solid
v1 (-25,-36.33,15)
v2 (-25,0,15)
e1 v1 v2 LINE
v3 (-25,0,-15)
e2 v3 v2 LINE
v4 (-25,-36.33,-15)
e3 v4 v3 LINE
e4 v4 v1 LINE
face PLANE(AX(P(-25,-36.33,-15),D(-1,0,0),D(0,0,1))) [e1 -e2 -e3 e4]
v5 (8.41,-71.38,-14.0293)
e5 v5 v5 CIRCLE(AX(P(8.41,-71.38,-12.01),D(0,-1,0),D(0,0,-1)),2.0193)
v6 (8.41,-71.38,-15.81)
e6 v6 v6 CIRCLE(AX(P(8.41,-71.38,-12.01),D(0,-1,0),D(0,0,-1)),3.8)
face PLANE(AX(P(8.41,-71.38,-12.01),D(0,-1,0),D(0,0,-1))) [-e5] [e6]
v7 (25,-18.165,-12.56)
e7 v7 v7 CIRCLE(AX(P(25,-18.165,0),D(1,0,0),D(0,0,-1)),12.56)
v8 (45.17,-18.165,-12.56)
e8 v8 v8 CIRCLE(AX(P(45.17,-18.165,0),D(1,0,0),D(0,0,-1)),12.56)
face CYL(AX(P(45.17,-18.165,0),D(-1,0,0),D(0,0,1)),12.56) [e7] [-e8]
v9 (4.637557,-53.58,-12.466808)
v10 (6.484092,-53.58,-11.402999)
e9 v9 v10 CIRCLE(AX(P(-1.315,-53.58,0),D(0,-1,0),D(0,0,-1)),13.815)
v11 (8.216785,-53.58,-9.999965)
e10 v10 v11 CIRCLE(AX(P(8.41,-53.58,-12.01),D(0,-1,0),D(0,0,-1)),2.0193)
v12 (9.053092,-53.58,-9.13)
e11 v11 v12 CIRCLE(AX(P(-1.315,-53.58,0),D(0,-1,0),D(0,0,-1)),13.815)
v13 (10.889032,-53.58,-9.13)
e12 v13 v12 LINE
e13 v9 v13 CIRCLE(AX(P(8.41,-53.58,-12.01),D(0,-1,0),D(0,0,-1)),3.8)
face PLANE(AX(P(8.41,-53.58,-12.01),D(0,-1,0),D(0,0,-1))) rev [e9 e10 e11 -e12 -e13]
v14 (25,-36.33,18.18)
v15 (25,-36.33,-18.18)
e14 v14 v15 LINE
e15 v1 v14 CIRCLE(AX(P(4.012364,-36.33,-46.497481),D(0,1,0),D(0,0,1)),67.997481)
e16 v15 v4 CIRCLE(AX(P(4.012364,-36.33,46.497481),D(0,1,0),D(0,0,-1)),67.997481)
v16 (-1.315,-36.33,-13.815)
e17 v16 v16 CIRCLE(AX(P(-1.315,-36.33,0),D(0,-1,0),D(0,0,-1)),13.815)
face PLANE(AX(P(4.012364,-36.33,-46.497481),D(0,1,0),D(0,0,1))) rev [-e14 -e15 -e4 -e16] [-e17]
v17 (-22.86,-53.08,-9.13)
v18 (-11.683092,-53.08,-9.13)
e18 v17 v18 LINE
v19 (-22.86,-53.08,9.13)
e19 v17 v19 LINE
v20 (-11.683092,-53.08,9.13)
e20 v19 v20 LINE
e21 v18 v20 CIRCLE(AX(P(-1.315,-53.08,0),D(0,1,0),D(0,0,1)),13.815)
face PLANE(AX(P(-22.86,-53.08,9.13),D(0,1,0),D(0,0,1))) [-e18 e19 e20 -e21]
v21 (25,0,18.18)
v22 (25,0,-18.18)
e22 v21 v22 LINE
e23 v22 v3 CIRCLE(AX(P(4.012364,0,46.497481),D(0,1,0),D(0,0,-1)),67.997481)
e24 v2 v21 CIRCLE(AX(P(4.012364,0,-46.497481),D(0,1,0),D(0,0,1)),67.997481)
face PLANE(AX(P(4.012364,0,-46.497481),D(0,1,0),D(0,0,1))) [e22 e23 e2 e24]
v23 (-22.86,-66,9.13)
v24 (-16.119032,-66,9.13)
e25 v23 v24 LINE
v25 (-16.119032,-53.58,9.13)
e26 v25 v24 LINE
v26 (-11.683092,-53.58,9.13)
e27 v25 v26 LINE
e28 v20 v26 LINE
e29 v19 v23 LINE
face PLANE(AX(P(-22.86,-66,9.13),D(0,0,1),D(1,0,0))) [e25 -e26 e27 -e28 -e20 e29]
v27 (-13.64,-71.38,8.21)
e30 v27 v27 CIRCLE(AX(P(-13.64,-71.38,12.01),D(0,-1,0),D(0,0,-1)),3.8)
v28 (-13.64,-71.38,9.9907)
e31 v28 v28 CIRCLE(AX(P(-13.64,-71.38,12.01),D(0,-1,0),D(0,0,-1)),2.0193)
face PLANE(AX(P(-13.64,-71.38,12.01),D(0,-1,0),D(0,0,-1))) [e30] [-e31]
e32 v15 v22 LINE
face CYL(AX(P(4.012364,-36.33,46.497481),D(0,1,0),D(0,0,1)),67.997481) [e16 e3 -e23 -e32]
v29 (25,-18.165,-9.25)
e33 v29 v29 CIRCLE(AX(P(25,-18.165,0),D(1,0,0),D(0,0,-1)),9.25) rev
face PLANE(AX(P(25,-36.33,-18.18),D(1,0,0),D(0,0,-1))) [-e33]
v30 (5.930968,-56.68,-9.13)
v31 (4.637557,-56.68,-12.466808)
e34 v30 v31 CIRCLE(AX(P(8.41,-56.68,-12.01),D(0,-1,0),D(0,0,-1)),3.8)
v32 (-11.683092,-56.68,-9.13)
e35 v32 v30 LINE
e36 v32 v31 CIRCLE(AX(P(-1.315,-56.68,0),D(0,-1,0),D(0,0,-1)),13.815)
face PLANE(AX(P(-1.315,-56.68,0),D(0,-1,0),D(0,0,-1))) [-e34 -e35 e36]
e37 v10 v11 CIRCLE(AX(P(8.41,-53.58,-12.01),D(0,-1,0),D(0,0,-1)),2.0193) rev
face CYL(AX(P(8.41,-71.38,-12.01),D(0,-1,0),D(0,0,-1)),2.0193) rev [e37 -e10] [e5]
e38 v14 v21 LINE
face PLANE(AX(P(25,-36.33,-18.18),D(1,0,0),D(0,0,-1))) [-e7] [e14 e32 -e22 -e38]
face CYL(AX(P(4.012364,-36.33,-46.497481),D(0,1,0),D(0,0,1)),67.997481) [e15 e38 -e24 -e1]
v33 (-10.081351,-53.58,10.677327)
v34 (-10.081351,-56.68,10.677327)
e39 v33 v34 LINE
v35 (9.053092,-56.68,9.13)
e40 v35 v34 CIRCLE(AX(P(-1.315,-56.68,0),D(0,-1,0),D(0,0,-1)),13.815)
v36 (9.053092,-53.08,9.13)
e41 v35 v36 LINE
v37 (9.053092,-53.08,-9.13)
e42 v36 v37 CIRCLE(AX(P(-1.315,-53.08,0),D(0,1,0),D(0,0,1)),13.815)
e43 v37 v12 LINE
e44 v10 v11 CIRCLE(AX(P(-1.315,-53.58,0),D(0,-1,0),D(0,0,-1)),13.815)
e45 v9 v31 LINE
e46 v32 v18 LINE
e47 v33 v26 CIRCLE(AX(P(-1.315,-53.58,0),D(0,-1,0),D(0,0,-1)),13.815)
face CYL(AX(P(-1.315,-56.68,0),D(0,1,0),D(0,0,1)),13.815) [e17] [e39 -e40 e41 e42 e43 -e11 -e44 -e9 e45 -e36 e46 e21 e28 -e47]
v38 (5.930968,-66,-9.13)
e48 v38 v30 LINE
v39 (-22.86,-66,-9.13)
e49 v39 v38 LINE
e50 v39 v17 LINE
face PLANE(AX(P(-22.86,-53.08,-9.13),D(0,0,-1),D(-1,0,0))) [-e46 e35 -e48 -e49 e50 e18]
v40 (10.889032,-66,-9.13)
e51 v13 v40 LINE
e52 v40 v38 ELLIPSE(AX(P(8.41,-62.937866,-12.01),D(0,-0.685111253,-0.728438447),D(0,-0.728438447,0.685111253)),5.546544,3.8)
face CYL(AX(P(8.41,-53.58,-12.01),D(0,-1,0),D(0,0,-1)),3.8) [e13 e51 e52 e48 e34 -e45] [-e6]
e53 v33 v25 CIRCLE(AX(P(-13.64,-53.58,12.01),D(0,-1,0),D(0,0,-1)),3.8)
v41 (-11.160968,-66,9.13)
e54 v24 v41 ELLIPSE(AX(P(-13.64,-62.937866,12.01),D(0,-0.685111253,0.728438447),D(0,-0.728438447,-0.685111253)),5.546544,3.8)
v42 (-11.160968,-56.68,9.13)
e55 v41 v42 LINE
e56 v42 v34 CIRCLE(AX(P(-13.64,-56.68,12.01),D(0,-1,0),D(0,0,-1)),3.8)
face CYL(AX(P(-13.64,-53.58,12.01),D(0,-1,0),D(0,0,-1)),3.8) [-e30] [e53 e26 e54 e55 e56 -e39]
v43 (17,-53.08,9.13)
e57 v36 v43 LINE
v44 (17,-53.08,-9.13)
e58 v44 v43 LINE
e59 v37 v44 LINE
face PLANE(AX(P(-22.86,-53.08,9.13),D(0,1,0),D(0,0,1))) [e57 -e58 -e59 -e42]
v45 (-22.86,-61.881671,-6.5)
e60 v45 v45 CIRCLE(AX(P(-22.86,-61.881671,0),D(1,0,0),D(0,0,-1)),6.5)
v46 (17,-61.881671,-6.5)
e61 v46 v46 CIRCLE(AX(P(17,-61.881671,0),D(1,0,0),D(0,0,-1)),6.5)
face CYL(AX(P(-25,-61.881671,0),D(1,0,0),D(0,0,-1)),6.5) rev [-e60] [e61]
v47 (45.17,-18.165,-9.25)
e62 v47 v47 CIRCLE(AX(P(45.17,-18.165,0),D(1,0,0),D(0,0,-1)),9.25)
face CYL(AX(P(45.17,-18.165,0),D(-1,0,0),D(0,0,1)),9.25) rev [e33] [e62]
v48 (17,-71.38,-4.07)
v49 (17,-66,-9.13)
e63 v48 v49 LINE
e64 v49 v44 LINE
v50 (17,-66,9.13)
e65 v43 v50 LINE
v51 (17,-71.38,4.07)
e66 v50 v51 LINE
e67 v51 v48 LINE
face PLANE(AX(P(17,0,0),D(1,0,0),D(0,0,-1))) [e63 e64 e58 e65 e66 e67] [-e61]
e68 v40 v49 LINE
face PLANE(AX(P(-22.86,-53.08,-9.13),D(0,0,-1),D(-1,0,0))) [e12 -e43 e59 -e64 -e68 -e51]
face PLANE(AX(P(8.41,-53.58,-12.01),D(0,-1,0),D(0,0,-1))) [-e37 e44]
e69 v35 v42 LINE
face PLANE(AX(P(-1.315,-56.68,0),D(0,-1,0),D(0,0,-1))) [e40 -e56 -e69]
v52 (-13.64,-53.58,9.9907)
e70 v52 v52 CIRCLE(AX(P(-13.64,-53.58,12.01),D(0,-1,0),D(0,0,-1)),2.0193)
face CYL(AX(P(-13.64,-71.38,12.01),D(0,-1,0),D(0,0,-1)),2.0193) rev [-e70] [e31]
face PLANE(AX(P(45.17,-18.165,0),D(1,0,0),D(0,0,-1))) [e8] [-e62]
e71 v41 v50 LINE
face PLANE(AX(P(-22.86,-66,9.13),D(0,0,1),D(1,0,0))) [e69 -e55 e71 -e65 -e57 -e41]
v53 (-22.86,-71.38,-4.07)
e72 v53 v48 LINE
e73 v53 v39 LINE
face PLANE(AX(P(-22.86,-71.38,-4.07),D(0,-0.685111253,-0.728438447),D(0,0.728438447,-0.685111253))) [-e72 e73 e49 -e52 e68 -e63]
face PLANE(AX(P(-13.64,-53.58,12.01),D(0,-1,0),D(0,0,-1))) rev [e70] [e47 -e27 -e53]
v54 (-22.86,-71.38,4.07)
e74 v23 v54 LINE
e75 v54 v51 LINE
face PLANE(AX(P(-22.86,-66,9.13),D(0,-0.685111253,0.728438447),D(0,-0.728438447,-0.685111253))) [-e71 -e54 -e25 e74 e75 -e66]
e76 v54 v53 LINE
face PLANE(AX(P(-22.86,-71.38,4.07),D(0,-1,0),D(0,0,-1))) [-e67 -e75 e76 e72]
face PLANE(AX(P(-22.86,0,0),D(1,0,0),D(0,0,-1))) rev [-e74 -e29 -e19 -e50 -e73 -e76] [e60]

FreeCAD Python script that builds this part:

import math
import FreeCAD as App
import Part
import Sketcher
from FreeCAD import Vector

doc = App.newDocument("Part")
body = doc.addObject("PartDesign::Body", "Body")

# Sketch on XZ plane
sketch1 = body.newObject("Sketcher::SketchObject", "Sketch")
sketch1.AttachmentSupport = (doc.getObject("XZ_Plane"), [""])
sketch1.MapMode = "FlatFace"
sketch1.addGeometry(Part.LineSegment(Vector(-25, -15, 0), Vector(-25, 15, 0)), False)
sketch1.addGeometry(Part.ArcOfCircle(Part.Circle(Vector(4, -46, 0), Vector(0, 0, 1), 68), math.radians(72), math.radians(115)), False)
sketch1.addGeometry(Part.LineSegment(Vector(25, 18, 0), Vector(25, -18, 0)), False)
sketch1.addGeometry(Part.ArcOfCircle(Part.Circle(Vector(4, 46, 0), Vector(0, 0, 1), 68), math.radians(-115), math.radians(-72)), False)
sketch1.addConstraint(Sketcher.Constraint("Coincident", 0, 2, 1, 2))
sketch1.addConstraint(Sketcher.Constraint("Coincident", 1, 1, 2, 1))
sketch1.addConstraint(Sketcher.Constraint("Coincident", 2, 2, 3, 2))
sketch1.addConstraint(Sketcher.Constraint("Coincident", 3, 1, 0, 1))
sketch1.addConstraint(Sketcher.Constraint("Vertical", 0))
sketch1.addConstraint(Sketcher.Constraint("Vertical", 2))
sketch1.addConstraint(Sketcher.Constraint("Equal", 1, 3))
sketch1.addConstraint(Sketcher.Constraint("Symmetric", 1, 3, 3, 3, -1))
sketch1.addConstraint(Sketcher.Constraint("DistanceY", 0, 1, 0, 2, 30.0))
sketch1.addConstraint(Sketcher.Constraint("DistanceX", 0, 2, -1, 1, 25.0))
sketch1.addConstraint(Sketcher.Constraint("DistanceX", -1, 1, 1, 1, 25.0))
sketch1.addConstraint(Sketcher.Constraint("DistanceY", 2, 2, 2, 1, 36.36))
sketch1.addConstraint(Sketcher.Constraint("Radius", 1, 67.997481))
pad1 = body.newObject("PartDesign::Pad", "Pad")
pad1.Profile = sketch1
pad1.Length = 36.33

# Sketch on YZ plane
sketch2 = body.newObject("Sketcher::SketchObject", "Sketch001")
sketch2.AttachmentSupport = (doc.getObject("YZ_Plane"), [""])
sketch2.MapMode = "FlatFace"
sketch2.AttachmentOffset = App.Placement(Vector(0, 0, 25), App.Rotation())
sketch2.addGeometry(Part.Circle(Vector(-18, 0, 0), Vector(0, 0, 1), 13), False)
sketch2.addGeometry(Part.Circle(Vector(-18, 0, 0), Vector(0, 0, 1), 9), False)
sketch2.addConstraint(Sketcher.Constraint("Coincident", 1, 3, 0, 3))
sketch2.addConstraint(Sketcher.Constraint("PointOnObject", 0, 3, -1))
sketch2.addConstraint(Sketcher.Constraint("Diameter", 1, 18.5))
sketch2.addConstraint(Sketcher.Constraint("Diameter", 0, 25.12))
sketch2.addConstraint(Sketcher.Constraint("DistanceX", 0, 3, -1, 1, 18.165))
pad2 = body.newObject("PartDesign::Pad", "Pad001")
pad2.Profile = sketch2
pad2.Length = 20.17

# Sketch on XZ plane
sketch3 = body.newObject("Sketcher::SketchObject", "Sketch002")
sketch3.AttachmentSupport = (doc.getObject("XZ_Plane"), [""])
sketch3.MapMode = "FlatFace"
sketch3.AttachmentOffset = App.Placement(Vector(0, 0, 36.33), App.Rotation())
sketch3.addGeometry(Part.Circle(Vector(-1, 0, 0), Vector(0, 0, 1), 14), False)
sketch3.addConstraint(Sketcher.Constraint("PointOnObject", 0, 3, -1))
sketch3.addConstraint(Sketcher.Constraint("Diameter", 0, 27.63))
sketch3.addConstraint(Sketcher.Constraint("DistanceX", 0, 3, -1, 1, 1.315))
pad3 = body.newObject("PartDesign::Pad", "Pad002")
pad3.Profile = sketch3
pad3.Length = 20.35

# Sketch on YZ plane
sketch4 = body.newObject("Sketcher::SketchObject", "Sketch003")
sketch4.AttachmentSupport = (doc.getObject("YZ_Plane"), [""])
sketch4.MapMode = "FlatFace"
sketch4.AttachmentOffset = App.Placement(Vector(0, 0, 25), App.Rotation())
sketch4.addGeometry(Part.LineSegment(Vector(-53, 9, 0), Vector(-66, 9, 0)), False)
sketch4.addGeometry(Part.LineSegment(Vector(-66, 9, 0), Vector(-71, 4, 0)), False)
sketch4.addGeometry(Part.LineSegment(Vector(-71, 4, 0), Vector(-71, -4, 0)), False)
sketch4.addGeometry(Part.LineSegment(Vector(-71, -4, 0), Vector(-66, -9, 0)), False)
sketch4.addGeometry(Part.LineSegment(Vector(-66, -9, 0), Vector(-53, -9, 0)), False)
sketch4.addGeometry(Part.LineSegment(Vector(-53, -9, 0), Vector(-53, 9, 0)), False)
sketch4.addConstraint(Sketcher.Constraint("Coincident", 0, 2, 1, 1))
sketch4.addConstraint(Sketcher.Constraint("Coincident", 1, 2, 2, 1))
sketch4.addConstraint(Sketcher.Constraint("Coincident", 2, 2, 3, 1))
sketch4.addConstraint(Sketcher.Constraint("Coincident", 3, 2, 4, 1))
sketch4.addConstraint(Sketcher.Constraint("Coincident", 4, 2, 5, 1))
sketch4.addConstraint(Sketcher.Constraint("Coincident", 5, 2, 0, 1))
sketch4.addConstraint(Sketcher.Constraint("Horizontal", 0))
sketch4.addConstraint(Sketcher.Constraint("Vertical", 2))
sketch4.addConstraint(Sketcher.Constraint("Horizontal", 4))
sketch4.addConstraint(Sketcher.Constraint("Vertical", 5))
sketch4.addConstraint(Sketcher.Constraint("Symmetric", 0, 2, 3, 2, -1))
sketch4.addConstraint(Sketcher.Constraint("Equal", 1, 3))
sketch4.addConstraint(Sketcher.Constraint("DistanceX", 0, 2, -1, 1, 66.0))
sketch4.addConstraint(Sketcher.Constraint("DistanceX", 0, 2, 0, 1, 12.92))
sketch4.addConstraint(Sketcher.Constraint("DistanceY", 2, 2, 2, 1, 8.14))
sketch4.addConstraint(Sketcher.Constraint("DistanceY", 5, 1, 5, 2, 18.26))
sketch4.addConstraint(Sketcher.Constraint("DistanceX", 2, 2, 4, 2, 18.3))
pad4 = body.newObject("PartDesign::Pad", "Pad003")
pad4.Profile = sketch4
pad4.Length = 47.86
pad4.Reversed = True

# Sketch on YZ plane
sketch5 = body.newObject("Sketcher::SketchObject", "Sketch004")
sketch5.AttachmentSupport = (doc.getObject("YZ_Plane"), [""])
sketch5.MapMode = "FlatFace"
sketch5.AttachmentOffset = App.Placement(Vector(0, 0, 25), App.Rotation())
sketch5.addGeometry(Part.LineSegment(Vector(-66, 9, 0), Vector(-71, 4, 0)), False)
sketch5.addGeometry(Part.LineSegment(Vector(-71, 4, 0), Vector(-71, -4, 0)), False)
sketch5.addGeometry(Part.LineSegment(Vector(-71, -4, 0), Vector(-66, -9, 0)), False)
sketch5.addGeometry(Part.LineSegment(Vector(-66, -9, 0), Vector(-53, -9, 0)), False)
sketch5.addGeometry(Part.LineSegment(Vector(-53, -9, 0), Vector(-53, 9, 0)), False)
sketch5.addGeometry(Part.LineSegment(Vector(-53, 9, 0), Vector(-66, 9, 0)), False)
sketch5.addConstraint(Sketcher.Constraint("Coincident", 0, 2, 1, 1))
sketch5.addConstraint(Sketcher.Constraint("Coincident", 1, 2, 2, 1))
sketch5.addConstraint(Sketcher.Constraint("Coincident", 2, 2, 3, 1))
sketch5.addConstraint(Sketcher.Constraint("Coincident", 3, 2, 4, 1))
sketch5.addConstraint(Sketcher.Constraint("Coincident", 4, 2, 5, 1))
sketch5.addConstraint(Sketcher.Constraint("Coincident", 5, 2, 0, 1))
sketch5.addConstraint(Sketcher.Constraint("Vertical", 1))
sketch5.addConstraint(Sketcher.Constraint("Horizontal", 3))
sketch5.addConstraint(Sketcher.Constraint("Vertical", 4))
sketch5.addConstraint(Sketcher.Constraint("Horizontal", 5))
sketch5.addConstraint(Sketcher.Constraint("Symmetric", 2, 2, 5, 2, -1))
sketch5.addConstraint(Sketcher.Constraint("Equal", 0, 2))
sketch5.addConstraint(Sketcher.Constraint("DistanceX", 2, 2, -1, 1, 66.0))
sketch5.addConstraint(Sketcher.Constraint("DistanceX", 3, 1, 3, 2, 12.92))
sketch5.addConstraint(Sketcher.Constraint("DistanceY", 1, 2, 1, 1, 8.14))
sketch5.addConstraint(Sketcher.Constraint("DistanceY", 4, 1, 4, 2, 18.26))
sketch5.addConstraint(Sketcher.Constraint("DistanceX", 1, 2, 3, 2, 18.3))
pocket1 = body.newObject("PartDesign::Pocket", "Pocket")
pocket1.Profile = sketch5
pocket1.Length = 8

# Sketch on YZ plane
sketch6 = body.newObject("Sketcher::SketchObject", "Sketch005")
sketch6.AttachmentSupport = (doc.getObject("YZ_Plane"), [""])
sketch6.MapMode = "FlatFace"
sketch6.AttachmentOffset = App.Placement(Vector(0, 0, 17), App.Rotation())
sketch6.addGeometry(Part.Circle(Vector(-62, 0, 0), Vector(0, 0, 1), 6), False)
sketch6.addConstraint(Sketcher.Constraint("PointOnObject", 0, 3, -1))
sketch6.addConstraint(Sketcher.Constraint("Diameter", 0, 13.0))
sketch6.addConstraint(Sketcher.Constraint("DistanceX", 0, 3, -1, 1, 61.881671))
pocket2 = body.newObject("PartDesign::Pocket", "Pocket001")
pocket2.Profile = sketch6
pocket2.Type = "ThroughAll"

# Sketch on XZ plane
sketch7 = body.newObject("Sketcher::SketchObject", "Sketch006")
sketch7.AttachmentSupport = (doc.getObject("XZ_Plane"), [""])
sketch7.MapMode = "FlatFace"
sketch7.AttachmentOffset = App.Placement(Vector(0, 0, 71.38), App.Rotation())
sketch7.addGeometry(Part.Circle(Vector(-13.6, 12, 0), Vector(0, 0, 1), 3.8), False)
sketch7.addGeometry(Part.Circle(Vector(8.4, -12, 0), Vector(0, 0, 1), 3.8), False)
sketch7.addConstraint(Sketcher.Constraint("Equal", 0, 1))
sketch7.addConstraint(Sketcher.Constraint("Diameter", 0, 7.6))
sketch7.addConstraint(Sketcher.Constraint("DistanceX", 0, 3, -1, 1, 13.64))
sketch7.addConstraint(Sketcher.Constraint("DistanceY", -1, 1, 0, 3, 12.01))
sketch7.addConstraint(Sketcher.Constraint("DistanceX", -1, 1, 1, 3, 8.41))
sketch7.addConstraint(Sketcher.Constraint("DistanceY", 1, 3, -1, 1, 12.01))
pad5 = body.newObject("PartDesign::Pad", "Pad004")
pad5.Profile = sketch7
pad5.Length = 17.8
pad5.Reversed = True

# Sketch on XZ plane
sketch8 = body.newObject("Sketcher::SketchObject", "Sketch007")
sketch8.AttachmentSupport = (doc.getObject("XZ_Plane"), [""])
sketch8.MapMode = "FlatFace"
sketch8.AttachmentOffset = App.Placement(Vector(0, 0, 71.38), App.Rotation())
sketch8.addGeometry(Part.Circle(Vector(-13.6, 12, 0), Vector(0, 0, 1), 2), False)
sketch8.addGeometry(Part.Circle(Vector(8.4, -12, 0), Vector(0, 0, 1), 2), False)
sketch8.addConstraint(Sketcher.Constraint("Equal", 0, 1))
sketch8.addConstraint(Sketcher.Constraint("Diameter", 0, 4.0386))
sketch8.addConstraint(Sketcher.Constraint("DistanceX", 0, 3, -1, 1, 13.64))
sketch8.addConstraint(Sketcher.Constraint("DistanceY", -1, 1, 0, 3, 12.01))
sketch8.addConstraint(Sketcher.Constraint("DistanceX", -1, 1, 1, 3, 8.41))
sketch8.addConstraint(Sketcher.Constraint("DistanceY", 1, 3, -1, 1, 12.01))
doc.recompute()
hole = body.newObject("PartDesign::Hole", "Hole")
hole.Profile = sketch8
hole.ThreadType = "None"
hole.Diameter = 4.0386
hole.DepthType = "Dimension"
hole.Depth = 17.8
hole.DrillPoint = "Flat"

doc.recompute()
